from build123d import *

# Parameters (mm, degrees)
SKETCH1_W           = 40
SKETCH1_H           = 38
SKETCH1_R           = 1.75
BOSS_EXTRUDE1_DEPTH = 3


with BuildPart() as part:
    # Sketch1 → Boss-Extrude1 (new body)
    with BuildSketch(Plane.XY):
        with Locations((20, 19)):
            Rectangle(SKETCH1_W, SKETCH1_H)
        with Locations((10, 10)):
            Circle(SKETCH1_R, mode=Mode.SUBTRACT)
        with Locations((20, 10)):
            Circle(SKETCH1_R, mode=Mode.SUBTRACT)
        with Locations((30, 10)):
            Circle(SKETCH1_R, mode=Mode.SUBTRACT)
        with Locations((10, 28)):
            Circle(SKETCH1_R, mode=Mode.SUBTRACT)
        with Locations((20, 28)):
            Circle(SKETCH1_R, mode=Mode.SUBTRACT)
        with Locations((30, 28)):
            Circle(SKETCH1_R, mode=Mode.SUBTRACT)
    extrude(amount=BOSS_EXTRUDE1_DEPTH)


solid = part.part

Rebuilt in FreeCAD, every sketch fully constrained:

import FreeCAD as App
import Part
import Sketcher

V = App.Vector


def add_polygon(sketch, points):
    """Adds a closed chain of lines whose ends are joined by coincident constraints."""
    first, n = sketch.GeometryCount, len(points)
    for a, b in zip(points, points[1:] + points[:1]):
        sketch.addGeometry(Part.LineSegment(App.Vector(*a, 0), App.Vector(*b, 0)), False)
    for i in range(n):
        sketch.addConstraint(Sketcher.Constraint("Coincident", first + i, 2, first + (i + 1) % n, 1))

doc = App.newDocument("Part")
params = doc.addObject("Spreadsheet::Sheet", "Params")
for row, (alias, value) in enumerate([
    ("sketch1_diameter", "3.5 mm"),
    ("sketch1_width", "40 mm"),
    ("sketch1_height", "38 mm"),
    ("pad1_length", "3 mm"),
], start=1):
    params.set(f"A{row}", alias)
    params.set(f"B{row}", "=" + value)
    params.setAlias(f"B{row}", alias)

body = doc.addObject("PartDesign::Body", "Body")

# Sketch on XY plane
sketch1 = doc.addObject("Sketcher::SketchObject", "Sketch")
body.addObject(sketch1)
sketch1.AttachmentSupport = (doc.XY_Plane, [""])
sketch1.MapMode = "FlatFace"
add_polygon(sketch1, [(0, 38), (0, 0), (40, 0), (40, 38)])  # lines 0-3
sketch1.addGeometry(Part.Circle(V(10, 10, 0), V(0, 0, 1), 1.75), False)  # 4
sketch1.addGeometry(Part.Circle(V(20, 10, 0), V(0, 0, 1), 1.75), False)  # 5
sketch1.addGeometry(Part.Circle(V(30, 10, 0), V(0, 0, 1), 1.75), False)  # 6
sketch1.addGeometry(Part.Circle(V(10, 28, 0), V(0, 0, 1), 1.75), False)  # 7
sketch1.addGeometry(Part.Circle(V(20, 28, 0), V(0, 0, 1), 1.75), False)  # 8
sketch1.addGeometry(Part.Circle(V(30, 28, 0), V(0, 0, 1), 1.75), False)  # 9
sketch1.addConstraint(Sketcher.Constraint("Vertical", 0))
sketch1.addConstraint(Sketcher.Constraint("Horizontal", 1))
sketch1.addConstraint(Sketcher.Constraint("Vertical", 2))
sketch1.addConstraint(Sketcher.Constraint("Horizontal", 3))
sketch1.addConstraint(Sketcher.Constraint("Coincident", 0, 2, -1, 1))
sketch1.addConstraint(Sketcher.Constraint("Equal", 4, 5))
sketch1.addConstraint(Sketcher.Constraint("Equal", 5, 6))
sketch1.addConstraint(Sketcher.Constraint("Equal", 6, 7))
sketch1.addConstraint(Sketcher.Constraint("Equal", 7, 8))
sketch1.addConstraint(Sketcher.Constraint("Equal", 8, 9))
sketch1.addConstraint(Sketcher.Constraint("Horizontal", 4, 3, 5, 3))
sketch1.addConstraint(Sketcher.Constraint("Horizontal", 5, 3, 6, 3))
sketch1.addConstraint(Sketcher.Constraint("Horizontal", 7, 3, 8, 3))
sketch1.addConstraint(Sketcher.Constraint("Horizontal", 8, 3, 9, 3))
sketch1.addConstraint(Sketcher.Constraint("Vertical", 4, 3, 7, 3))
sketch1.addConstraint(Sketcher.Constraint("Vertical", 5, 3, 8, 3))
sketch1.addConstraint(Sketcher.Constraint("Vertical", 6, 3, 9, 3))
sketch1.addConstraint(Sketcher.Constraint("Diameter", 4, 3.5))
sketch1.addConstraint(Sketcher.Constraint("DistanceX", 1, 1, 1, 2, 40.0))
sketch1.addConstraint(Sketcher.Constraint("DistanceY", 0, 2, 0, 1, 38.0))
sketch1.addConstraint(Sketcher.Constraint("DistanceX", -1, 1, 4, 3, 10.0))
sketch1.addConstraint(Sketcher.Constraint("DistanceY", -1, 1, 4, 3, 10.0))
sketch1.addConstraint(Sketcher.Constraint("DistanceX", -1, 1, 5, 3, 20.0))
sketch1.addConstraint(Sketcher.Constraint("DistanceX", -1, 1, 6, 3, 30.0))
sketch1.addConstraint(Sketcher.Constraint("DistanceY", -1, 1, 7, 3, 28.0))
sketch1.setExpression("Constraints[21]", "Params.sketch1_diameter")
sketch1.setExpression("Constraints[22]", "Params.sketch1_width")
sketch1.setExpression("Constraints[23]", "Params.sketch1_height")
pad1 = doc.addObject("PartDesign::Pad", "Pad")
body.addObject(pad1)
pad1.Profile = sketch1
pad1.setExpression("Length", "Params.pad1_length")

doc.recompute()
